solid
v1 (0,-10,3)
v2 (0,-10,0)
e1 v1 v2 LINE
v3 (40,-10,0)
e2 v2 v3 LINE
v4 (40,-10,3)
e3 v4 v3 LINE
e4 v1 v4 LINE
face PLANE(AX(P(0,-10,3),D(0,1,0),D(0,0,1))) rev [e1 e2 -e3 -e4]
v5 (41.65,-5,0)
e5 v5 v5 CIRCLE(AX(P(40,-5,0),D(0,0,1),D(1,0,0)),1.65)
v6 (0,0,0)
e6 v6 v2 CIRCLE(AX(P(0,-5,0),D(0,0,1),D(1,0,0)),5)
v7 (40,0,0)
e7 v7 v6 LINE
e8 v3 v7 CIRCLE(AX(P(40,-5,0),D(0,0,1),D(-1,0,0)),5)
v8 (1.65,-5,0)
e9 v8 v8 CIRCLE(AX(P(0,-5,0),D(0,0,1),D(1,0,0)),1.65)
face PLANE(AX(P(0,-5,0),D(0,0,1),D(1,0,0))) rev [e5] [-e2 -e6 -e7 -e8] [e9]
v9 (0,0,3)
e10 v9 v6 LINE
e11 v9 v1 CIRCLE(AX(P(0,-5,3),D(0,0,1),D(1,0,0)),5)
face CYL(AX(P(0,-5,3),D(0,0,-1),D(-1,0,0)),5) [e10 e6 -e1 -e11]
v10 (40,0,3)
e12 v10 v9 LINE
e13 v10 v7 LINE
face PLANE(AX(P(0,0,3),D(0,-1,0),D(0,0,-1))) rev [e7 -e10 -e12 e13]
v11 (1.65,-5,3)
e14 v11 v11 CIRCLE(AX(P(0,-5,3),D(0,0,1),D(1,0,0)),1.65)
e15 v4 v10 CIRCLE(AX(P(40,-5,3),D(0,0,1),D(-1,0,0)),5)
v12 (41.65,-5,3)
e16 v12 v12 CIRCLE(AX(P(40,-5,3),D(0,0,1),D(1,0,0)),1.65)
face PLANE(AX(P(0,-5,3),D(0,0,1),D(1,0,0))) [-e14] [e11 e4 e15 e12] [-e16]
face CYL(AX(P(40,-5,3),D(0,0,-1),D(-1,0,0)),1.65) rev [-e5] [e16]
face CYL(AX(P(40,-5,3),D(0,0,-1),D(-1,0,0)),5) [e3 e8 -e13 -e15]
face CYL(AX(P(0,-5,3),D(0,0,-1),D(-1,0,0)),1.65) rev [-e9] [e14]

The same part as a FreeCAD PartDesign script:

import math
import FreeCAD as App
import Part
import Sketcher
Q = App.Units.Quantity

doc = App.newDocument("Part")
params = doc.addObject("Spreadsheet::Sheet", "Params")
for row, (alias, value) in enumerate([
    ("sketch1_radius", "5 mm"),
    ("sketch1_diameter", "3.3 mm"),
    ("sketch1_width", "40 mm"),
    ("pad1_length", "3 mm"),
], start=1):
    params.set(f"A{row}", alias)
    params.set(f"B{row}", "=" + value)
    params.setAlias(f"B{row}", alias)

body = doc.addObject("PartDesign::Body", "Body")

sketch1 = body.newObject("Sketcher::SketchObject", "Sketch")
sketch1.AttachmentSupport = (doc.getObject("XY_Plane"), [""])
sketch1.MapMode = "FlatFace"
sketch1.addGeometry([
    Part.LineSegment(App.Vector(40, 0, 0), App.Vector(0, 0, 0)),
    Part.ArcOfCircle(Part.Circle(App.Vector(0, -5, 0), App.Vector(0, 0, 1), 5), math.radians(90), math.radians(270)),
    Part.LineSegment(App.Vector(0, -10, 0), App.Vector(40, -10, 0)),
    Part.ArcOfCircle(Part.Circle(App.Vector(40, -5, 0), App.Vector(0, 0, 1), 5), math.radians(-90), math.radians(90)),
    Part.Circle(App.Vector(40, -5, 0), App.Vector(0, 0, 1), 1.6),
    Part.Circle(App.Vector(0, -5, 0), App.Vector(0, 0, 1), 1.6),
], False)
sketch1.addConstraint([
    Sketcher.Constraint("Tangent", 0, 2, 1, 1),
    Sketcher.Constraint("Tangent", 1, 2, 2, 1),
    Sketcher.Constraint("Tangent", 2, 2, 3, 1),
    Sketcher.Constraint("Tangent", 3, 2, 0, 1),
    Sketcher.Constraint("Horizontal", 0),
    Sketcher.Constraint("Horizontal", 2),
    Sketcher.Constraint("Coincident", 0, 2, -1, 1),
    Sketcher.Constraint("Coincident", 4, 3, 3, 3),
    Sketcher.Constraint("Coincident", 5, 3, 1, 3),
    Sketcher.Constraint("Equal", 4, 5),
    Sketcher.Constraint("Radius", 1, Q("5 mm")),
    Sketcher.Constraint("Diameter", 4, Q("3.3 mm")),
    Sketcher.Constraint("DistanceX", 0, 2, 0, 1, Q("40 mm")),
])
sketch1.setExpression("Constraints[10]", "Params.sketch1_radius")
sketch1.setExpression("Constraints[11]", "Params.sketch1_diameter")
sketch1.setExpression("Constraints[12]", "Params.sketch1_width")
pad1 = body.newObject("PartDesign::Pad", "Pad")
pad1.Profile = sketch1
pad1.setExpression("Length", "Params.pad1_length")

doc.recompute()
